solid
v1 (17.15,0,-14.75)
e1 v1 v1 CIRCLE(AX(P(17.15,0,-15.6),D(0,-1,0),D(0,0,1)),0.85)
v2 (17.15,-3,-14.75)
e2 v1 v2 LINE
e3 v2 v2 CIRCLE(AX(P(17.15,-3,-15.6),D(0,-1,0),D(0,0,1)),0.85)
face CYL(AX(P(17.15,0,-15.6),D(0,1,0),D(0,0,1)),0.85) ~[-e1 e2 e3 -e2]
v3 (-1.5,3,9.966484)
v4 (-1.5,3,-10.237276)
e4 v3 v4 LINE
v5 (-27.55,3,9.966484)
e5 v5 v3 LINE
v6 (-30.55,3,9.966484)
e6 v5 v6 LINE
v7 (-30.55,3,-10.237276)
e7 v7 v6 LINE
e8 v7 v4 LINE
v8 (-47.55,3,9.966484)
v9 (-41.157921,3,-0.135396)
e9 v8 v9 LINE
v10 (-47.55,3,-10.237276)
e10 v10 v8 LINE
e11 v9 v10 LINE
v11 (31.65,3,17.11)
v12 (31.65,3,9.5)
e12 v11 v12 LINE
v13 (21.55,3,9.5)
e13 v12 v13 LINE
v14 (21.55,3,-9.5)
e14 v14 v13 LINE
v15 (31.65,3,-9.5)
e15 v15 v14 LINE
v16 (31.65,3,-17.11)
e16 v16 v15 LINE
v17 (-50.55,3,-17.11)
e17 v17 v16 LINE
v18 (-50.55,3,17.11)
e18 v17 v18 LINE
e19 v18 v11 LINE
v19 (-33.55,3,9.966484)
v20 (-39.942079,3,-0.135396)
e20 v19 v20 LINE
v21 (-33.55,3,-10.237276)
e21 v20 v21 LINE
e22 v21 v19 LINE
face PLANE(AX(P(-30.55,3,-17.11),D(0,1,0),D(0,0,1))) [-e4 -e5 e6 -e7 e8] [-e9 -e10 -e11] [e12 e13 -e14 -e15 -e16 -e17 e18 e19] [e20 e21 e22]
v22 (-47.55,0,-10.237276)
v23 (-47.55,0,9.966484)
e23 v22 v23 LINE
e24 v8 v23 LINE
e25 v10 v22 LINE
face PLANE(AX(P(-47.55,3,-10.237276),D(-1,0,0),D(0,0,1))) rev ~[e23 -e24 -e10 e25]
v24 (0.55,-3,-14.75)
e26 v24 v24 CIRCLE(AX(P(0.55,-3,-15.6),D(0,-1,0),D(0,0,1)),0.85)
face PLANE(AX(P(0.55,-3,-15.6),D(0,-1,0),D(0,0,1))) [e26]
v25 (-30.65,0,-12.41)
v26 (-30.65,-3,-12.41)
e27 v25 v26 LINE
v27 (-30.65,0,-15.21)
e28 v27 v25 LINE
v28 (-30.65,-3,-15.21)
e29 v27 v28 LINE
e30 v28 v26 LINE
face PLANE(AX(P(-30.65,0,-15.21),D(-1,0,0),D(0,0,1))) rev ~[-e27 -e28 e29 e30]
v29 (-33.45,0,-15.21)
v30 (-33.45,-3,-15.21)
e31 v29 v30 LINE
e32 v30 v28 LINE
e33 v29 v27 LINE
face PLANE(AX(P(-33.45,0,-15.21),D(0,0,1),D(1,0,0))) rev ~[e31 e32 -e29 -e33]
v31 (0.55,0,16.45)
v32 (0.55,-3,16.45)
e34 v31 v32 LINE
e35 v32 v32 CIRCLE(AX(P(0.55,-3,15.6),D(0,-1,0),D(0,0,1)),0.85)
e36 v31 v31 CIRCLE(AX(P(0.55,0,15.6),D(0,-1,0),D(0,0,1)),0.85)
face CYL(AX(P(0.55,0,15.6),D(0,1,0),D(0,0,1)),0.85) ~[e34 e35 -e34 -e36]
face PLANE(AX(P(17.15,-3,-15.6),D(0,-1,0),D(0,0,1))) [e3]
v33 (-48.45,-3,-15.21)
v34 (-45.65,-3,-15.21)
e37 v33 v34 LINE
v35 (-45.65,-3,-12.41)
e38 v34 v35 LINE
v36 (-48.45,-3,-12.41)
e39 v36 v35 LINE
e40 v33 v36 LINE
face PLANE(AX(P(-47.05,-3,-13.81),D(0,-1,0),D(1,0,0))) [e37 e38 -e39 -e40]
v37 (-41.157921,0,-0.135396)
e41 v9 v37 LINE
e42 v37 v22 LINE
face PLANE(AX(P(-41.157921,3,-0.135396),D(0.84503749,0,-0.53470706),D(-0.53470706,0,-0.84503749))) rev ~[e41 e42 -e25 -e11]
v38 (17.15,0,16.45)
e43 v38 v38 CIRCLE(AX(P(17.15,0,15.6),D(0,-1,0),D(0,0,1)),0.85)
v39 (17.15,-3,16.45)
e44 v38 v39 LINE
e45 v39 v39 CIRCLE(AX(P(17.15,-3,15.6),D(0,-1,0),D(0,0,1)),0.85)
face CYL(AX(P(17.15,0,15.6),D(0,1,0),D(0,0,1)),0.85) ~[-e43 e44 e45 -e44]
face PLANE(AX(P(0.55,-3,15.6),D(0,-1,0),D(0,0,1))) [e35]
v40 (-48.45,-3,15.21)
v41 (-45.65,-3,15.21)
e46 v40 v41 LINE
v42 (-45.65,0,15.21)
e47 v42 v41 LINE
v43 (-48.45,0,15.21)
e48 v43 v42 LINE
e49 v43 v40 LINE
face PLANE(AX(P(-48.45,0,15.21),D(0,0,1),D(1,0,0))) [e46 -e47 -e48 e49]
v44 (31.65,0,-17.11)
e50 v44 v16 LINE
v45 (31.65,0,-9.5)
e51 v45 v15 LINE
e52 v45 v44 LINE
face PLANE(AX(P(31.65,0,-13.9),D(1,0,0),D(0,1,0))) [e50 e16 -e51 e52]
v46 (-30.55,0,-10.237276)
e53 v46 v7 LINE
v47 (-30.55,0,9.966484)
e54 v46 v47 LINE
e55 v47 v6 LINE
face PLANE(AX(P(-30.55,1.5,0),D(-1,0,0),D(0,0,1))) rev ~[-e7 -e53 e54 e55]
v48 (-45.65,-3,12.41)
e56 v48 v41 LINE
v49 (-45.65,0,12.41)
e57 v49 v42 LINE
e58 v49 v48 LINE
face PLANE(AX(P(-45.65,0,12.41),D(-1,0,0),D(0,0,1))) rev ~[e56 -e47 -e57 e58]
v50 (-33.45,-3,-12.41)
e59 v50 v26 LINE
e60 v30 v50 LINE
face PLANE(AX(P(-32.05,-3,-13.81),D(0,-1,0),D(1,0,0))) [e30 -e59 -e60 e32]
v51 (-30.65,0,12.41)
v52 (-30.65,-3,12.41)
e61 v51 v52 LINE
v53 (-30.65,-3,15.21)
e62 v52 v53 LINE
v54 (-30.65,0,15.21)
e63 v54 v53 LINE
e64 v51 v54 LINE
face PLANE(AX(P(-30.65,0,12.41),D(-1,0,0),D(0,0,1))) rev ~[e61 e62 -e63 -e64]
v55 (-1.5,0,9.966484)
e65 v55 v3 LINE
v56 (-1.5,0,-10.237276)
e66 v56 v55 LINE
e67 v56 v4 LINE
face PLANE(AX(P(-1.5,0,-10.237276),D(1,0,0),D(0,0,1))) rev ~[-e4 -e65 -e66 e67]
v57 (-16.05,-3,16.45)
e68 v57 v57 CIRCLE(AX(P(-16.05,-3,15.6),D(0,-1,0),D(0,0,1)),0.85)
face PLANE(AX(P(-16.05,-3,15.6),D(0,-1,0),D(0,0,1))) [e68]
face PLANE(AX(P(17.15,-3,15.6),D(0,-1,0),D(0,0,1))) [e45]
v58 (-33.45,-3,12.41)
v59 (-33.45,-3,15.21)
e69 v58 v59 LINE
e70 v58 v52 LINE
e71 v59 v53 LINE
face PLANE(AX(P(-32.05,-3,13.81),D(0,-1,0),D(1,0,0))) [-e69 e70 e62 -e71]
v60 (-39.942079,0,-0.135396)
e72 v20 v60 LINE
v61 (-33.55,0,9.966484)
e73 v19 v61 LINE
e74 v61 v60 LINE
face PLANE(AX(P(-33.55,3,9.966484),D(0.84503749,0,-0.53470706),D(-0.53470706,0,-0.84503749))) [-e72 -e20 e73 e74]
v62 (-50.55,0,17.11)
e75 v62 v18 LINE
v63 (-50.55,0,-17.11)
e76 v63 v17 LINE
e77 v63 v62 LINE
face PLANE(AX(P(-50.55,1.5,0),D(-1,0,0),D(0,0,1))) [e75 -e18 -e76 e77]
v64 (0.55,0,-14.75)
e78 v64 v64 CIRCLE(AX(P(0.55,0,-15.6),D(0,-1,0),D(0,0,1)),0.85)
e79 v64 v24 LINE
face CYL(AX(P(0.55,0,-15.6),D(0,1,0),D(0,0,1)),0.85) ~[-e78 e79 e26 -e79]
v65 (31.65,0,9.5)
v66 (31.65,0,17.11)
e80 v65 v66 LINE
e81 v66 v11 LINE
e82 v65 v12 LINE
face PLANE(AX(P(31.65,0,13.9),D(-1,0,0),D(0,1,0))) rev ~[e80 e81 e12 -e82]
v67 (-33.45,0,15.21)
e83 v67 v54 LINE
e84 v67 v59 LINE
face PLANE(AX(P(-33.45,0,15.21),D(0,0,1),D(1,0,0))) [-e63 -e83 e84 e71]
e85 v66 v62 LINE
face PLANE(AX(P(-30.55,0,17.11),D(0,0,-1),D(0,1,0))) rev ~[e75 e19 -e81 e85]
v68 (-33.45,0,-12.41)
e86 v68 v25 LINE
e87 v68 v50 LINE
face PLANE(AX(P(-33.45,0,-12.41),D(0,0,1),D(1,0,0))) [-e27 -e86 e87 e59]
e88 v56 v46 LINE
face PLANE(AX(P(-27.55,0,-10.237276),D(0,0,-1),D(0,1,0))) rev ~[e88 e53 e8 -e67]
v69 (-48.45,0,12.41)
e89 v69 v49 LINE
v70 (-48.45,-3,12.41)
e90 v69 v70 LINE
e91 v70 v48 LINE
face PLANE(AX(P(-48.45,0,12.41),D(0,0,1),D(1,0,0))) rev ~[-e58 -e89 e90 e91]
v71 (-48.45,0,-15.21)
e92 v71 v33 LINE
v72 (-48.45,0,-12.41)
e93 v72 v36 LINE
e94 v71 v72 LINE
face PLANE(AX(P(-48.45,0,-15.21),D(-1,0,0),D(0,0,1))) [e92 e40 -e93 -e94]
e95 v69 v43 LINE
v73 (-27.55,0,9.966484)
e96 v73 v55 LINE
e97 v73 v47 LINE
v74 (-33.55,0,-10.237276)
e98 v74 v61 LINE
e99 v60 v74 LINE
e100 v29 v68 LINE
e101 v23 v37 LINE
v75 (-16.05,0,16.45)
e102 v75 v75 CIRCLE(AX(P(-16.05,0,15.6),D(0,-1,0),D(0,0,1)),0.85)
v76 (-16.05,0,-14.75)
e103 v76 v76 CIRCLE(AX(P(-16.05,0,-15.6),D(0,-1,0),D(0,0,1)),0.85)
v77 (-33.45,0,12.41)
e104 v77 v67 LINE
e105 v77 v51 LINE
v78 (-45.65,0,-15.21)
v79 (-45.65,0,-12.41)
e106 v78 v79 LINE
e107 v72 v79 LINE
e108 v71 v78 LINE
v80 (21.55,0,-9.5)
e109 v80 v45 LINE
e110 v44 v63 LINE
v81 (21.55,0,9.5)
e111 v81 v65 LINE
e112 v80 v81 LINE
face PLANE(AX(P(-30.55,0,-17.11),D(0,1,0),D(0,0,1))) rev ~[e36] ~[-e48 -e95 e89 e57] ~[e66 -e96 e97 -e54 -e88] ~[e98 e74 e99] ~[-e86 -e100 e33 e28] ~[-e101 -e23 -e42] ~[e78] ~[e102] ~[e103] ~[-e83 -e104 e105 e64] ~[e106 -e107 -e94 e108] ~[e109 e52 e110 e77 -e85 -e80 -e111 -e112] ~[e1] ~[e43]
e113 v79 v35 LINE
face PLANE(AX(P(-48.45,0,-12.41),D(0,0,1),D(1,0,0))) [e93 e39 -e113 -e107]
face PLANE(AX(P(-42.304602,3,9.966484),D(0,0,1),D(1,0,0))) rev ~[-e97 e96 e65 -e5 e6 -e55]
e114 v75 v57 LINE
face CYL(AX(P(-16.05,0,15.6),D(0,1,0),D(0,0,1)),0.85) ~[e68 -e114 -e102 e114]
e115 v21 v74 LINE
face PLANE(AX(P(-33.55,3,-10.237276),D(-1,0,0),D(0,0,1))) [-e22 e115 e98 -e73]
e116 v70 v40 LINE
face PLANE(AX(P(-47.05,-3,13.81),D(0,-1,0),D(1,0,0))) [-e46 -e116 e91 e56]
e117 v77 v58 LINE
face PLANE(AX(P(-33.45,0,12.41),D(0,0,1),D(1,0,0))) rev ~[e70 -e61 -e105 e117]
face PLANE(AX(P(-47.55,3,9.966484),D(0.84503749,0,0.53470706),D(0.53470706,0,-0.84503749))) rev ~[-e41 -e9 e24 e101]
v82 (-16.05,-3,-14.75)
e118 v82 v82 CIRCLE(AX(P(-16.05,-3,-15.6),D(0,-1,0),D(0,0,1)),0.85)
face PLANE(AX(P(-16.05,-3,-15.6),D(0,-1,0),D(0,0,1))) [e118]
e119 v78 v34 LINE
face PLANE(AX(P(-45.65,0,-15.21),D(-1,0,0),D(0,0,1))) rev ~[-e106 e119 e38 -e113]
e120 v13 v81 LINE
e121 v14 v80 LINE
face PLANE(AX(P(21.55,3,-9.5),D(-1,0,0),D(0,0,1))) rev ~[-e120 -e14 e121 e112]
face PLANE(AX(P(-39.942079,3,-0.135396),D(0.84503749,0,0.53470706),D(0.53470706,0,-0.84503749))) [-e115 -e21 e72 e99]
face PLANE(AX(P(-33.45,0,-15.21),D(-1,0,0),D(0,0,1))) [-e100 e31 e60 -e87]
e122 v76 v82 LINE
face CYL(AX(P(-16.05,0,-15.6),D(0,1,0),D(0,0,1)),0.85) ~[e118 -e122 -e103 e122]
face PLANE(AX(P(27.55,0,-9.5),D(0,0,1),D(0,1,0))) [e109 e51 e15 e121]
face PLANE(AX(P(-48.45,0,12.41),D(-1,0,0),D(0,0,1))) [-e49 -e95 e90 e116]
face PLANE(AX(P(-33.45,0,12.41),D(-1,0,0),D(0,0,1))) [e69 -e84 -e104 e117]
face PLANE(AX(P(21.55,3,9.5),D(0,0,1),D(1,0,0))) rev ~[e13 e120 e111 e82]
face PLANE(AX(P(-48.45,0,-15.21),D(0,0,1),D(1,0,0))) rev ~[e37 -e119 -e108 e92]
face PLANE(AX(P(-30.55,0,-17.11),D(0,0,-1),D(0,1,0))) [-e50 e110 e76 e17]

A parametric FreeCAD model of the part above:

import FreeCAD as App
import Part
import Sketcher
from FreeCAD import Vector


def add_polygon(sketch, points):
    """Adds a closed chain of lines whose ends are joined by coincident constraints."""
    first, n = sketch.GeometryCount, len(points)
    for a, b in zip(points, points[1:] + points[:1]):
        sketch.addGeometry(Part.LineSegment(App.Vector(*a, 0), App.Vector(*b, 0)), False)
    for i in range(n):
        sketch.addConstraint(Sketcher.Constraint("Coincident", first + i, 2, first + (i + 1) % n, 1))

doc = App.newDocument("Part")
body = doc.addObject("PartDesign::Body", "Body")

sketch1 = body.newObject("Sketcher::SketchObject", "Sketch")
sketch1.AttachmentSupport = (doc.getObject("XZ_Plane"), [""])
sketch1.MapMode = "FlatFace"
add_polygon(sketch1, [(-28, -14), (-28, 14), (28, 14), (28, -14)])
sketch1.addConstraint([
    Sketcher.Constraint("Vertical", 0),
    Sketcher.Constraint("Horizontal", 1),
    Sketcher.Constraint("Vertical", 2),
    Sketcher.Constraint("Horizontal", 3),
    Sketcher.Constraint("Symmetric", 0, 2, 2, 2, -1, 1),
    Sketcher.Constraint("DistanceX", 1, 1, 1, 2, 55.1),
    Sketcher.Constraint("DistanceY", 0, 1, 0, 2, 27.8),
])
pad1 = body.newObject("PartDesign::Pad", "Pad")
pad1.Profile = sketch1
pad1.Length = 3
pad1.Reversed = True

sketch2 = body.newObject("Sketcher::SketchObject", "Sketch001")
sketch2.AttachmentSupport = (doc.getObject("XZ_Plane"), [""])
sketch2.MapMode = "FlatFace"
add_polygon(sketch2, [(-23, 10), (-23, -10), (-2, -10), (-2, 10)])
sketch2.addConstraint([
    Sketcher.Constraint("Vertical", 0),
    Sketcher.Constraint("Horizontal", 1),
    Sketcher.Constraint("Vertical", 2),
    Sketcher.Constraint("Horizontal", 3),
    Sketcher.Constraint("DistanceX", 1, 1, 1, 2, 21.65),
    Sketcher.Constraint("DistanceX", 1, 2, -1, 1, 1.5),
    Sketcher.Constraint("DistanceY", 0, 2, 0, 1, 20.20376),
    Sketcher.Constraint("DistanceY", 0, 2, -1, 1, 10.237276),
])
pocket1 = body.newObject("PartDesign::Pocket", "Pocket")
pocket1.Profile = sketch2
pocket1.Length = 32.003427

sketch3 = body.newObject("Sketcher::SketchObject", "Sketch002")
sketch3.AttachmentSupport = (doc.getObject("XZ_Plane"), [""])
sketch3.MapMode = "FlatFace"
sketch3.AttachmentOffset = App.Placement(Vector(0, 0, -3), App.Rotation())
add_polygon(sketch3, [(-42, -10), (-42, 10), (-23, 10), (-23, -10)])
sketch3.addConstraint([
    Sketcher.Constraint("Vertical", 0),
    Sketcher.Constraint("Horizontal", 1),
    Sketcher.Constraint("Vertical", 2),
    Sketcher.Constraint("Horizontal", 3),
    Sketcher.Constraint("DistanceX", 1, 2, -1, 1, 23.15),
    Sketcher.Constraint("DistanceX", 1, 1, 1, 2, 19.154602),
    Sketcher.Constraint("DistanceY", 0, 1, 0, 2, 20.20376),
    Sketcher.Constraint("DistanceY", -1, 1, 0, 2, 9.966484),
])
pocket2 = body.newObject("PartDesign::Pocket", "Pocket001")
pocket2.Profile = sketch3
pocket2.Type = "ThroughAll"
pocket2.Reversed = True

sketch4 = body.newObject("Sketcher::SketchObject", "Sketch003")
sketch4.AttachmentSupport = (doc.getObject("XZ_Plane"), [""])
sketch4.MapMode = "FlatFace"
sketch4.AttachmentOffset = App.Placement(Vector(0, 0, -3), App.Rotation())
add_polygon(sketch4, [(28, 10), (28, -10), (22, -10), (22, 10)])
sketch4.addConstraint([
    Sketcher.Constraint("Vertical", 0),
    Sketcher.Constraint("Horizontal", 1),
    Sketcher.Constraint("Vertical", 2),
    Sketcher.Constraint("Horizontal", 3),
    Sketcher.Constraint("DistanceX", 1, 2, 1, 1, 6.0),
    Sketcher.Constraint("DistanceY", 0, 2, 0, 1, 19.0),
    Sketcher.Constraint("DistanceY", 0, 2, -1, 1, 9.5),
    Sketcher.Constraint("DistanceX", -1, 1, 0, 2, 27.55),
])
pocket3 = body.newObject("PartDesign::Pocket", "Pocket002")
pocket3.Profile = sketch4
pocket3.Length = 10
pocket3.Reversed = True

sketch5 = body.newObject("Sketcher::SketchObject", "Sketch004")
sketch5.AttachmentSupport = (doc.getObject("YZ_Plane"), [""])
sketch5.MapMode = "FlatFace"
sketch5.AttachmentOffset = App.Placement(Vector(0, 0, 27.55), App.Rotation())
add_polygon(sketch5, [(3, -9.5), (0, -9.5), (0, -13.9), (3, -13.9)])
add_polygon(sketch5, [(3, 13.9), (0, 13.9), (0, 9.5), (3, 9.5)])
sketch5.addConstraint([
    Sketcher.Constraint("Horizontal", 0),
    Sketcher.Constraint("Vertical", 1),
    Sketcher.Constraint("Horizontal", 2),
    Sketcher.Constraint("Vertical", 3),
    Sketcher.Constraint("Horizontal", 4),
    Sketcher.Constraint("Vertical", 5),
    Sketcher.Constraint("Horizontal", 6),
    Sketcher.Constraint("Vertical", 7),
    Sketcher.Constraint("Symmetric", 1, 2, 4, 2, -1, 1),
    Sketcher.Constraint("Symmetric", 0, 2, 5, 2, -1),
    Sketcher.Constraint("Vertical", 3, 2, 6, 2),
    Sketcher.Constraint("DistanceX", 0, 2, 0, 1, 3.0),
    Sketcher.Constraint("DistanceY", 1, 2, 1, 1, 4.4),
    Sketcher.Constraint("DistanceY", 0, 2, 5, 2, 19.0),
])
pad2 = body.newObject("PartDesign::Pad", "Pad001")
pad2.Profile = sketch5
pad2.Length = 4.1

sketch6 = body.newObject("Sketcher::SketchObject", "Sketch005")
sketch6.AttachmentSupport = (doc.getObject("YZ_Plane"), [""])
sketch6.MapMode = "FlatFace"
sketch6.AttachmentOffset = App.Placement(Vector(0, 0, -27.55), App.Rotation())
add_polygon(sketch6, [(3, -13.9), (0, -13.9), (0, -10.2), (3, -10.2)])
add_polygon(sketch6, [(3, 10), (0, 10), (0, 13.9), (3, 13.9)])
sketch6.addConstraint([
    Sketcher.Constraint("Horizontal", 0),
    Sketcher.Constraint("Vertical", 1),
    Sketcher.Constraint("Horizontal", 2),
    Sketcher.Constraint("Vertical", 3),
    Sketcher.Constraint("Horizontal", 4),
    Sketcher.Constraint("Vertical", 5),
    Sketcher.Constraint("Horizontal", 6),
    Sketcher.Constraint("Vertical", 7),
    Sketcher.Constraint("Symmetric", 0, 2, 5, 2, -1, 1),
    Sketcher.Constraint("PointOnObject", 0, 2, -2),
    Sketcher.Constraint("Vertical", 3, 2, 6, 2),
    Sketcher.Constraint("DistanceX", 0, 2, 0, 1, 3.0),
    Sketcher.Constraint("DistanceY", 0, 2, -1, 1, 13.9),
    Sketcher.Constraint("DistanceY", 1, 1, 1, 2, 3.662724),
    Sketcher.Constraint("DistanceY", 5, 1, 5, 2, 3.933516),
])
pad3 = body.newObject("PartDesign::Pad", "Pad002")
pad3.Profile = sketch6
pad3.Length = 3
pad3.Reversed = True

sketch7 = body.newObject("Sketcher::SketchObject", "Sketch006")
sketch7.AttachmentSupport = (doc.getObject("XY_Plane"), [""])
sketch7.MapMode = "FlatFace"
sketch7.AttachmentOffset = App.Placement(Vector(0, 0, -13.9), App.Rotation())
add_polygon(sketch7, [(31.6, 3), (31.6, 0), (-30.6, 0), (-30.6, 3)])
sketch7.addConstraint([
    Sketcher.Constraint("Vertical", 0),
    Sketcher.Constraint("Horizontal", 1),
    Sketcher.Constraint("Vertical", 2),
    Sketcher.Constraint("Horizontal", 3),
    Sketcher.Constraint("PointOnObject", 0, 2, -1),
    Sketcher.Constraint("DistanceY", 0, 2, 0, 1, 3.0),
    Sketcher.Constraint("DistanceX", 1, 2, 1, 1, 62.2),
    Sketcher.Constraint("DistanceX", -1, 1, 0, 2, 31.65),
])
pad4 = body.newObject("PartDesign::Pad", "Pad003")
pad4.Profile = sketch7
pad4.Length = 3.21
pad4.Reversed = True

sketch8 = body.newObject("Sketcher::SketchObject", "Sketch007")
sketch8.AttachmentSupport = (doc.getObject("XY_Plane"), [""])
sketch8.MapMode = "FlatFace"
sketch8.AttachmentOffset = App.Placement(Vector(0, 0, 13.9), App.Rotation())
add_polygon(sketch8, [(-30.6, 3), (-30.6, 0), (31.6, 0), (31.6, 3)])
sketch8.addConstraint([
    Sketcher.Constraint("Vertical", 0),
    Sketcher.Constraint("Horizontal", 1),
    Sketcher.Constraint("Vertical", 2),
    Sketcher.Constraint("Horizontal", 3),
    Sketcher.Constraint("PointOnObject", 0, 2, -1),
    Sketcher.Constraint("DistanceY", 0, 2, 0, 1, 3.0),
    Sketcher.Constraint("DistanceX", 1, 1, 1, 2, 62.2),
    Sketcher.Constraint("DistanceX", 0, 2, -1, 1, 30.55),
])
pad5 = body.newObject("PartDesign::Pad", "Pad004")
pad5.Profile = sketch8
pad5.Length = 3.21

sketch9 = body.newObject("Sketcher::SketchObject", "Sketch008")
sketch9.AttachmentSupport = (doc.getObject("YZ_Plane"), [""])
sketch9.MapMode = "FlatFace"
sketch9.AttachmentOffset = App.Placement(Vector(0, 0, -30.55), App.Rotation())
add_polygon(sketch9, [(3, -17.1), (0, -17.1), (0, 17.1), (3, 17.1)])
sketch9.addConstraint([
    Sketcher.Constraint("Horizontal", 0),
    Sketcher.Constraint("Vertical", 1),
    Sketcher.Constraint("Horizontal", 2),
    Sketcher.Constraint("Vertical", 3),
    Sketcher.Constraint("Symmetric", 0, 2, 1, 2, -1, 1),
    Sketcher.Constraint("DistanceX", 0, 2, 0, 1, 3.0),
    Sketcher.Constraint("DistanceY", 1, 1, 1, 2, 34.22),
])
pad6 = body.newObject("PartDesign::Pad", "Pad005")
pad6.Profile = sketch9
pad6.Length = 20
pad6.Reversed = True

sketch10 = body.newObject("Sketcher::SketchObject", "Sketch009")
sketch10.AttachmentSupport = (doc.getObject("XZ_Plane"), [""])
sketch10.MapMode = "FlatFace"
sketch10.AttachmentOffset = App.Placement(Vector(0, 0, -3), App.Rotation())
add_polygon(sketch10, [(-34, 10), (-34, -10), (-40, 0)])
add_polygon(sketch10, [(-48, -10), (-48, 10), (-41, 0)])
sketch10.addConstraint([
    Sketcher.Constraint("Vertical", 0),
    Sketcher.Constraint("Vertical", 3),
    Sketcher.Constraint("Parallel", 1, 4),
    Sketcher.Constraint("Parallel", 2, 5),
    Sketcher.Constraint("Horizontal", 2, 2, 3, 2),
    Sketcher.Constraint("Horizontal", 1, 2, 4, 2),
    Sketcher.Constraint("Horizontal", 0, 2, 5, 2),
    Sketcher.Constraint("DistanceX", 3, 2, 2, 2, 14.0),
    Sketcher.Constraint("DistanceX", 0, 2, -1, 1, 33.55),
    Sketcher.Constraint("DistanceY", 0, 2, 0, 1, 20.20376),
    Sketcher.Constraint("DistanceX", 1, 2, -1, 1, 39.942079),
    Sketcher.Constraint("DistanceY", 0, 2, -1, 1, 10.237276),
])
pocket4 = body.newObject("PartDesign::Pocket", "Pocket003")
pocket4.Profile = sketch10
pocket4.Type = "ThroughAll"
pocket4.Reversed = True

sketch11 = body.newObject("Sketcher::SketchObject", "Sketch010")
sketch11.AttachmentSupport = (doc.getObject("XZ_Plane"), [""])
sketch11.MapMode = "FlatFace"
add_polygon(sketch11, [(-48.5, 15.2), (-48.5, 12.4), (-45.6, 12.4), (-45.6, 15.2)])
add_polygon(sketch11, [(-48.5, -12.4), (-48.5, -15.2), (-45.6, -15.2), (-45.6, -12.4)])
add_polygon(sketch11, [(-33.5, 15.2), (-33.5, 12.4), (-30.6, 12.4), (-30.6, 15.2)])
add_polygon(sketch11, [(-33.5, -12.4), (-33.5, -15.2), (-30.6, -15.2), (-30.6, -12.4)])
sketch11.addConstraint([
    Sketcher.Constraint("Vertical", 0),
    Sketcher.Constraint("Horizontal", 1),
    Sketcher.Constraint("Vertical", 2),
    Sketcher.Constraint("Horizontal", 3),
    Sketcher.Constraint("Vertical", 4),
    Sketcher.Constraint("Horizontal", 5),
    Sketcher.Constraint("Vertical", 6),
    Sketcher.Constraint("Horizontal", 7),
    Sketcher.Constraint("Vertical", 8),
    Sketcher.Constraint("Horizontal", 9),
    Sketcher.Constraint("Vertical", 10),
    Sketcher.Constraint("Horizontal", 11),
    Sketcher.Constraint("Vertical", 12),
    Sketcher.Constraint("Horizontal", 13),
    Sketcher.Constraint("Vertical", 14),
    Sketcher.Constraint("Horizontal", 15),
    Sketcher.Constraint("Symmetric", 3, 2, 4, 2, -1),
    Sketcher.Constraint("Symmetric", 1, 2, 6, 2, -1),
    Sketcher.Constraint("Symmetric", 11, 2, 12, 2, -1),
    Sketcher.Constraint("Symmetric", 9, 2, 14, 2, -1),
    Sketcher.Constraint("Horizontal", 1, 2, 8, 2),
    Sketcher.Constraint("Horizontal", 3, 2, 10, 2),
    Sketcher.Constraint("Equal", 7, 9),
    Sketcher.Constraint("Equal", 15, 0),
    Sketcher.Constraint("DistanceX", 1, 1, 1, 2, 2.8),
    Sketcher.Constraint("DistanceX", 0, 2, 8, 2, 15.0),
    Sketcher.Constraint("DistanceX", 0, 2, -1, 1, 48.45),
    Sketcher.Constraint("DistanceY", -1, 1, 0, 2, 12.41),
])
pad7 = body.newObject("PartDesign::Pad", "Pad006")
pad7.Profile = sketch11
pad7.Length = 3

sketch12 = body.newObject("Sketcher::SketchObject", "Sketch011")
sketch12.AttachmentSupport = (doc.getObject("XZ_Plane"), [""])
sketch12.MapMode = "FlatFace"
sketch12.addGeometry([
    Part.Circle(Vector(-16.1, 15.6, 0), Vector(0, 0, 1), 0.8),
    Part.Circle(Vector(-16.1, -15.6, 0), Vector(0, 0, 1), 0.8),
    Part.Circle(Vector(0.6, -15.6, 0), Vector(0, 0, 1), 0.8),
    Part.Circle(Vector(0.6, 15.6, 0), Vector(0, 0, 1), 0.8),
    Part.Circle(Vector(17.1, 15.6, 0), Vector(0, 0, 1), 0.8),
    Part.Circle(Vector(17.1, -15.6, 0), Vector(0, 0, 1), 0.8),
], False)
sketch12.addConstraint([
    Sketcher.Constraint("Equal", 0, 1),
    Sketcher.Constraint("Equal", 1, 2),
    Sketcher.Constraint("Equal", 2, 3),
    Sketcher.Constraint("Equal", 3, 4),
    Sketcher.Constraint("Equal", 4, 5),
    Sketcher.Constraint("Symmetric", 0, 3, 1, 3, -1),
    Sketcher.Constraint("Symmetric", 2, 3, 3, 3, -1),
    Sketcher.Constraint("Symmetric", 4, 3, 5, 3, -1),
    Sketcher.Constraint("Horizontal", 1, 3, 2, 3),
    Sketcher.Constraint("Horizontal", 3, 3, 4, 3),
    Sketcher.Constraint("Diameter", 0, 1.7),
    Sketcher.Constraint("DistanceY", -1, 1, 0, 3, 15.6),
    Sketcher.Constraint("DistanceX", 1, 3, 2, 3, 16.6),
    Sketcher.Constraint("DistanceX", 3, 3, 4, 3, 16.6),
    Sketcher.Constraint("DistanceX", 0, 3, -1, 1, 16.05),
])
pad8 = body.newObject("PartDesign::Pad", "Pad007")
pad8.Profile = sketch12
pad8.Length = 3

doc.recompute()
